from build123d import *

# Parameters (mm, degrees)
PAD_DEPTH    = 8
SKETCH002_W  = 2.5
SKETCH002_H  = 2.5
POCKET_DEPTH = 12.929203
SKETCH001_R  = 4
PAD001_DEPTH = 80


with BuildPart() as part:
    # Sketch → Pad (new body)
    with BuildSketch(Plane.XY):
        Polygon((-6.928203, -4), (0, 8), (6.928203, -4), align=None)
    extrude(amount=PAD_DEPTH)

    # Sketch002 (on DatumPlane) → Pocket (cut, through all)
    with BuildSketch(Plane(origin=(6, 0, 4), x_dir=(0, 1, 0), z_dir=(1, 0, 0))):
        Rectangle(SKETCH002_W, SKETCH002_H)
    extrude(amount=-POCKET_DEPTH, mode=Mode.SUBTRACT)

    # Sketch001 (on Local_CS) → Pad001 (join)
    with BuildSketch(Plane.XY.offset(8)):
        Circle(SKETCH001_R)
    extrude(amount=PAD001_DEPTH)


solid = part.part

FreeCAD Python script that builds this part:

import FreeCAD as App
import Part
import Sketcher
Q = App.Units.Quantity

doc = App.newDocument("Part")
params = doc.addObject("Spreadsheet::Sheet", "Params")
for row, (alias, value) in enumerate([
    ("pad1_length", "8 mm"),
    ("sketch2_width", "2.5 mm"),
    ("sketch3_diameter", "8 mm"),
    ("pad2_length", "80 mm"),
], start=1):
    params.set(f"A{row}", alias)
    params.set(f"B{row}", "=" + value)
    params.setAlias(f"B{row}", alias)

body = doc.addObject("PartDesign::Body", "Body")

sketch1 = body.newObject("Sketcher::SketchObject", "Sketch")
sketch1.AttachmentSupport = (doc.getObject("XY_Plane"), [""])
sketch1.MapMode = "FlatFace"
sketch1.addGeometry([
    Part.LineSegment(App.Vector(0, 8, 0), App.Vector(-6.928203, -4, 0)),
    Part.LineSegment(App.Vector(-6.928203, -4, 0), App.Vector(6.928203, -4, 0)),
    Part.LineSegment(App.Vector(6.928203, -4, 0), App.Vector(0, 8, 0)),
], False)
sketch1.addConstraint([
    Sketcher.Constraint("Coincident", 0, 2, 1, 1),
    Sketcher.Constraint("Coincident", 1, 2, 2, 1),
    Sketcher.Constraint("Coincident", 2, 2, 0, 1),
    Sketcher.Constraint("Horizontal", 1),
    Sketcher.Constraint("PointOnObject", 2, 2, -2),
    Sketcher.Constraint("Equal", 0, 2),
    Sketcher.Constraint("Angle", 0, Q("-119.999999 deg")),
    Sketcher.Constraint("DistanceY", 0, 2, -1, 1, Q("4 mm")),
    Sketcher.Constraint("DistanceY", -1, 1, 2, 2, Q("8 mm")),
])
pad1 = body.newObject("PartDesign::Pad", "Pad")
pad1.Profile = sketch1
pad1.setExpression("Length", "Params.pad1_length")

sketch2 = body.newObject("Sketcher::SketchObject", "Sketch001")
sketch2.AttachmentSupport = (doc.getObject("YZ_Plane"), [""])
sketch2.MapMode = "FlatFace"
sketch2.AttachmentOffset = App.Placement(App.Vector(0, 0, 6), App.Rotation())
sketch2.addGeometry([
    Part.LineSegment(App.Vector(-1.25, 5.25, 0), App.Vector(-1.25, 2.75, 0)),
    Part.LineSegment(App.Vector(-1.25, 2.75, 0), App.Vector(1.25, 2.75, 0)),
    Part.LineSegment(App.Vector(1.25, 2.75, 0), App.Vector(1.25, 5.25, 0)),
    Part.LineSegment(App.Vector(1.25, 5.25, 0), App.Vector(-1.25, 5.25, 0)),
], False)
sketch2.addConstraint([
    Sketcher.Constraint("Coincident", 0, 2, 1, 1),
    Sketcher.Constraint("Coincident", 1, 2, 2, 1),
    Sketcher.Constraint("Coincident", 2, 2, 3, 1),
    Sketcher.Constraint("Coincident", 3, 2, 0, 1),
    Sketcher.Constraint("Vertical", 0),
    Sketcher.Constraint("Horizontal", 1),
    Sketcher.Constraint("Vertical", 2),
    Sketcher.Constraint("Horizontal", 3),
    Sketcher.Constraint("Equal", 3, 0),
    Sketcher.Constraint("DistanceX", 1, 1, 1, 2, Q("2.5 mm")),
    Sketcher.Constraint("DistanceX", 0, 2, -1, 1, Q("1.25 mm")),
    Sketcher.Constraint("DistanceY", -1, 1, 0, 2, Q("2.75 mm")),
])
sketch2.setExpression("Constraints[9]", "Params.sketch2_width")
pocket1 = body.newObject("PartDesign::Pocket", "Pocket")
pocket1.Profile = sketch2
pocket1.Type = "ThroughAll"

sketch3 = body.newObject("Sketcher::SketchObject", "Sketch002")
sketch3.AttachmentSupport = (doc.getObject("XY_Plane"), [""])
sketch3.MapMode = "FlatFace"
sketch3.AttachmentOffset = App.Placement(App.Vector(0, 0, 8), App.Rotation())
sketch3.addGeometry(Part.Circle(App.Vector(0, 0, 0), App.Vector(0, 0, 1), 4), False)
sketch3.addConstraint([
    Sketcher.Constraint("Coincident", 0, 3, -1, 1),
    Sketcher.Constraint("Diameter", 0, Q("8 mm")),
])
sketch3.setExpression("Constraints[1]", "Params.sketch3_diameter")
pad2 = body.newObject("PartDesign::Pad", "Pad001")
pad2.Profile = sketch3
pad2.setExpression("Length", "Params.pad2_length")

doc.recompute()
